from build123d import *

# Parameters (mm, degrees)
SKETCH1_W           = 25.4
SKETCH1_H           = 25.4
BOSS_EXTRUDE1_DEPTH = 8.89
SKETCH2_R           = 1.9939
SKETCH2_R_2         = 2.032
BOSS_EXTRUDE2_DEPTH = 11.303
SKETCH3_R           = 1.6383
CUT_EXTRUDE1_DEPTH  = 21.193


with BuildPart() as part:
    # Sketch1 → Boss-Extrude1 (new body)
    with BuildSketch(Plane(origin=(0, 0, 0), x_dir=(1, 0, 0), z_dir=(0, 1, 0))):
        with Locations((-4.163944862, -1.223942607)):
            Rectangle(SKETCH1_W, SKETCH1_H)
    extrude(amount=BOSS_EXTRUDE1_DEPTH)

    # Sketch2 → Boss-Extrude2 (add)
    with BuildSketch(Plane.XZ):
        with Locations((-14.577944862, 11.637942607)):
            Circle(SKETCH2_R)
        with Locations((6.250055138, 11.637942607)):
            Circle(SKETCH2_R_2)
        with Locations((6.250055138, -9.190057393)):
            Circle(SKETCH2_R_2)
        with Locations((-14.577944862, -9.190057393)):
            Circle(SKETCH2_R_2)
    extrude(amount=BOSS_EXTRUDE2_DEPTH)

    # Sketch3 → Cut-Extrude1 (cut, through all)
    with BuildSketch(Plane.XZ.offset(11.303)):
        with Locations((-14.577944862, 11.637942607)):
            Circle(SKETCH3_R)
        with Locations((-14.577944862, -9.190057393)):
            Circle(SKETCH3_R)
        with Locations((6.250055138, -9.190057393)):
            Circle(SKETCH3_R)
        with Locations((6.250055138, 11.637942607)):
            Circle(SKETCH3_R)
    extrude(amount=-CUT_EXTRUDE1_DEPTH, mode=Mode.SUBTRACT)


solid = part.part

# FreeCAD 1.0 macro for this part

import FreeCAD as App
import Part
import Sketcher
from FreeCAD import Vector
Q = App.Units.Quantity

doc = App.newDocument("Part")
body = doc.addObject("PartDesign::Body", "Body")

# Sketch on XZ plane
sketch1 = body.newObject("Sketcher::SketchObject", "Sketch")
sketch1.AttachmentSupport = (doc.getObject("XZ_Plane"), [""])
sketch1.MapMode = "FlatFace"
sketch1.addGeometry([
    Part.LineSegment(Vector(-17, -11, 0), Vector(-17, 14, 0)),
    Part.LineSegment(Vector(-17, 14, 0), Vector(9, 14, 0)),
    Part.LineSegment(Vector(9, 14, 0), Vector(9, -11, 0)),
    Part.LineSegment(Vector(9, -11, 0), Vector(-17, -11, 0)),
], False)
sketch1.addConstraint([
    Sketcher.Constraint("Coincident", 0, 2, 1, 1),
    Sketcher.Constraint("Coincident", 1, 2, 2, 1),
    Sketcher.Constraint("Coincident", 2, 2, 3, 1),
    Sketcher.Constraint("Coincident", 3, 2, 0, 1),
    Sketcher.Constraint("Vertical", 0),
    Sketcher.Constraint("Horizontal", 1),
    Sketcher.Constraint("Vertical", 2),
    Sketcher.Constraint("Horizontal", 3),
    Sketcher.Constraint("Equal", 3, 0),
    Sketcher.Constraint("DistanceX", 1, 1, 1, 2, Q("1 in")),
    Sketcher.Constraint("DistanceX", 0, 2, -1, 1, 16.863945),
    Sketcher.Constraint("DistanceY", -1, 1, 0, 2, 13.923943),
])
pad1 = body.newObject("PartDesign::Pad", "Pad")
pad1.Profile = sketch1
pad1.Length = Q("0.35 in")
pad1.Reversed = True

# Sketch on XZ plane
sketch2 = body.newObject("Sketcher::SketchObject", "Sketch001")
sketch2.AttachmentSupport = (doc.getObject("XZ_Plane"), [""])
sketch2.MapMode = "FlatFace"
sketch2.addGeometry([
    Part.Circle(Vector(-14.6, 11.6, 0), Vector(0, 0, 1), 2),
    Part.Circle(Vector(6.3, 11.6, 0), Vector(0, 0, 1), 2),
    Part.Circle(Vector(6.3, -9.2, 0), Vector(0, 0, 1), 2),
    Part.Circle(Vector(-14.6, -9.2, 0), Vector(0, 0, 1), 2),
], False)
sketch2.addConstraint([
    Sketcher.Constraint("Equal", 1, 2),
    Sketcher.Constraint("Equal", 2, 3),
    Sketcher.Constraint("Horizontal", 0, 3, 1, 3),
    Sketcher.Constraint("Horizontal", 2, 3, 3, 3),
    Sketcher.Constraint("Vertical", 1, 3, 2, 3),
    Sketcher.Constraint("Vertical", 0, 3, 3, 3),
    Sketcher.Constraint("Diameter", 1, Q("0.16 in")),
    Sketcher.Constraint("Diameter", 0, Q("0.157 in")),
    Sketcher.Constraint("DistanceX", 0, 3, 1, 3, Q("0.82 in")),
    Sketcher.Constraint("DistanceY", 2, 3, 1, 3, Q("0.82 in")),
    Sketcher.Constraint("DistanceX", 0, 3, -1, 1, 14.577945),
    Sketcher.Constraint("DistanceY", -1, 1, 0, 3, 11.637943),
])
pad2 = body.newObject("PartDesign::Pad", "Pad001")
pad2.Profile = sketch2
pad2.Length = Q("0.445 in")

# Sketch on XZ plane
sketch3 = body.newObject("Sketcher::SketchObject", "Sketch002")
sketch3.AttachmentSupport = (doc.getObject("XZ_Plane"), [""])
sketch3.MapMode = "FlatFace"
sketch3.AttachmentOffset = App.Placement(Vector(0, 0, 0.445 * 25.4), App.Rotation())
sketch3.addGeometry([
    Part.Circle(Vector(-14.6, 11.6, 0), Vector(0, 0, 1), 1.6),
    Part.Circle(Vector(-14.6, -9.2, 0), Vector(0, 0, 1), 1.6),
    Part.Circle(Vector(6.3, -9.2, 0), Vector(0, 0, 1), 1.6),
    Part.Circle(Vector(6.3, 11.6, 0), Vector(0, 0, 1), 1.6),
], False)
sketch3.addConstraint([
    Sketcher.Constraint("Equal", 0, 1),
    Sketcher.Constraint("Equal", 1, 2),
    Sketcher.Constraint("Equal", 2, 3),
    Sketcher.Constraint("Horizontal", 1, 3, 2, 3),
    Sketcher.Constraint("Horizontal", 0, 3, 3, 3),
    Sketcher.Constraint("Vertical", 0, 3, 1, 3),
    Sketcher.Constraint("Vertical", 2, 3, 3, 3),
    Sketcher.Constraint("Diameter", 0, Q("0.129 in")),
    Sketcher.Constraint("DistanceY", 1, 3, 0, 3, Q("0.82 in")),
    Sketcher.Constraint("DistanceX", 1, 3, 2, 3, Q("0.82 in")),
    Sketcher.Constraint("DistanceX", 0, 3, -1, 1, 14.577945),
    Sketcher.Constraint("DistanceY", -1, 1, 0, 3, 11.637943),
])
pocket1 = body.newObject("PartDesign::Pocket", "Pocket")
pocket1.Profile = sketch3
pocket1.Type = "ThroughAll"

doc.recompute()
